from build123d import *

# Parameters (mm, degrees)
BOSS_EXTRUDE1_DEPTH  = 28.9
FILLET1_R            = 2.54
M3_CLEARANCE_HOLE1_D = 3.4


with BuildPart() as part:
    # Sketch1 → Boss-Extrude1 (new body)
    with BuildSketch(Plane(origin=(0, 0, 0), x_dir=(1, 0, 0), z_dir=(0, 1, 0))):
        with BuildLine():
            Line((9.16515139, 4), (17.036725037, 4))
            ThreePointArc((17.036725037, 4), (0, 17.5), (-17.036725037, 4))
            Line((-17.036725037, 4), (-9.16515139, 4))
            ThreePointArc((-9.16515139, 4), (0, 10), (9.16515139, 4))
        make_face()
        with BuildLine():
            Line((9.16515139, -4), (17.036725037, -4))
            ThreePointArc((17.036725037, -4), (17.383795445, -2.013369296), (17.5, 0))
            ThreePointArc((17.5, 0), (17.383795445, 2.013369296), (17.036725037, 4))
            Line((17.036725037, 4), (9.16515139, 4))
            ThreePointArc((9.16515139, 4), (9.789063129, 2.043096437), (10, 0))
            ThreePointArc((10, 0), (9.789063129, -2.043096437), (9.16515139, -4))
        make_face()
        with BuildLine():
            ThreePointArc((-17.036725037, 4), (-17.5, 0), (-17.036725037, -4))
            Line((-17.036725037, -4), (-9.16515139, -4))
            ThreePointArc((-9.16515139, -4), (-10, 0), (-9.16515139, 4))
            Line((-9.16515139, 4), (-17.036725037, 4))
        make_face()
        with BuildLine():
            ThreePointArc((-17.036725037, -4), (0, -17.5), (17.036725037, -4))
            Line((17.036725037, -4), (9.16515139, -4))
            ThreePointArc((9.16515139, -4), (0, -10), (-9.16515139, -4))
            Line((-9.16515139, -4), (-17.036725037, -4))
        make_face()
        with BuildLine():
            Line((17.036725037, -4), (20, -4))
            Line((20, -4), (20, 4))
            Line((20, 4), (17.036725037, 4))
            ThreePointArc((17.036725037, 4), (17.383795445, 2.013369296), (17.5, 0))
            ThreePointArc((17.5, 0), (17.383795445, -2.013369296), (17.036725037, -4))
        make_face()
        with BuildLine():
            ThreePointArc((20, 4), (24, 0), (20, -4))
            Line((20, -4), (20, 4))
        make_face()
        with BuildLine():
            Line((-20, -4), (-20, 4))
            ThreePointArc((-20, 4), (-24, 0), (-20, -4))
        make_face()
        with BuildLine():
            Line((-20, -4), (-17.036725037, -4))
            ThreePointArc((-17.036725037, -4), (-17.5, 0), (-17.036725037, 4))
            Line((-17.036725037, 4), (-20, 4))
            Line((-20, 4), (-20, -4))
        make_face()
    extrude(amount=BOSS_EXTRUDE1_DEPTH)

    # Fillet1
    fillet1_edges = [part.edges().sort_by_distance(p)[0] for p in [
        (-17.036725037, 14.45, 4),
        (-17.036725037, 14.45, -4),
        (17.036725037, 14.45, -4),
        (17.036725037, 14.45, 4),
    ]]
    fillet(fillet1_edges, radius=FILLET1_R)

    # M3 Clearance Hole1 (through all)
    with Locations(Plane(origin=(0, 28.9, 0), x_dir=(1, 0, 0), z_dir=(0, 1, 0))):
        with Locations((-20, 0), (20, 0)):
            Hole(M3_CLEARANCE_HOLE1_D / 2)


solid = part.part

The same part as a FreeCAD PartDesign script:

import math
import FreeCAD as App
import Part
import Sketcher


def edges_at(feature, points):
    """Names of the edges that pass closest to the given points."""
    edges = feature.Shape.Edges
    near = lambda p: min(range(len(edges)), key=lambda i: edges[i].distToShape(Part.Vertex(*p))[0])
    return sorted({f"Edge{near(p) + 1}" for p in points})

doc = App.newDocument("Part")
params = doc.addObject("Spreadsheet::Sheet", "Params")
for row, (alias, value) in enumerate([
    ("sketch1_radius", "4 mm"),
    ("sketch1_radius2", "10 mm"),
    ("sketch1_radius3", "17.5 mm"),
    ("pad1_length", "28.9 mm"),
    ("fillet_radius", "2.54 mm"),
    ("sketch2_diameter", "3.4 mm"),
    ("hole_diameter", "3.4 mm"),
], start=1):
    params.set(f"A{row}", alias)
    params.set(f"B{row}", "=" + value)
    params.setAlias(f"B{row}", alias)

body = doc.addObject("PartDesign::Body", "Body")

sketch1 = doc.addObject("Sketcher::SketchObject", "Sketch")
body.addObject(sketch1)
sketch1.AttachmentSupport = (doc.XZ_Plane, [""])
sketch1.MapMode = "FlatFace"
sketch1.addGeometry([
    Part.ArcOfCircle(Part.Circle(App.Vector(0, 0, 0), App.Vector(0, 0, 1), 17.5), math.radians(-167), math.radians(-13)),
    Part.LineSegment(App.Vector(-17, -4, 0), App.Vector(-20, -4, 0)),
    Part.ArcOfCircle(Part.Circle(App.Vector(-20, 0, 0), App.Vector(0, 0, 1), 4), math.radians(90), math.radians(270)),
    Part.LineSegment(App.Vector(-20, 4, 0), App.Vector(-17, 4, 0)),
    Part.ArcOfCircle(Part.Circle(App.Vector(0, 0, 0), App.Vector(0, 0, 1), 17.5), math.radians(13), math.radians(167)),
    Part.LineSegment(App.Vector(17, 4, 0), App.Vector(20, 4, 0)),
    Part.ArcOfCircle(Part.Circle(App.Vector(20, 0, 0), App.Vector(0, 0, 1), 4), math.radians(-90), math.radians(90)),
    Part.LineSegment(App.Vector(20, -4, 0), App.Vector(17, -4, 0)),
    Part.ArcOfCircle(Part.Circle(App.Vector(0, 0, 0), App.Vector(0, 0, 1), 10), math.radians(24), math.radians(156)),
    Part.ArcOfCircle(Part.Circle(App.Vector(0, 0, 0), App.Vector(0, 0, 1), 10), math.radians(156), math.radians(204)),
    Part.ArcOfCircle(Part.Circle(App.Vector(0, 0, 0), App.Vector(0, 0, 1), 10), math.radians(-156), math.radians(-24)),
    Part.ArcOfCircle(Part.Circle(App.Vector(0, 0, 0), App.Vector(0, 0, 1), 10), math.radians(-24), math.radians(0)),
    Part.ArcOfCircle(Part.Circle(App.Vector(0, 0, 0), App.Vector(0, 0, 1), 10), math.radians(0), math.radians(24)),
], False)
sketch1.addConstraint([
    Sketcher.Constraint("Coincident", 0, 1, 1, 1),
    Sketcher.Constraint("Tangent", 1, 2, 2, 2),
    Sketcher.Constraint("Tangent", 2, 1, 3, 1),
    Sketcher.Constraint("Coincident", 3, 2, 4, 2),
    Sketcher.Constraint("Coincident", 4, 1, 5, 1),
    Sketcher.Constraint("Tangent", 5, 2, 6, 2),
    Sketcher.Constraint("Tangent", 6, 1, 7, 1),
    Sketcher.Constraint("Coincident", 7, 2, 0, 2),
    Sketcher.Constraint("Tangent", 8, 2, 9, 1),
    Sketcher.Constraint("Tangent", 9, 2, 10, 1),
    Sketcher.Constraint("Tangent", 10, 2, 11, 1),
    Sketcher.Constraint("Tangent", 11, 2, 12, 1),
    Sketcher.Constraint("Tangent", 12, 2, 8, 1),
    Sketcher.Constraint("Horizontal", 1),
    Sketcher.Constraint("Horizontal", 3),
    Sketcher.Constraint("Horizontal", 5),
    Sketcher.Constraint("Horizontal", 7),
    Sketcher.Constraint("Coincident", 0, 3, -1, 1),
    Sketcher.Constraint("Coincident", 4, 3, -1, 1),
    Sketcher.Constraint("Coincident", 8, 3, -1, 1),
    Sketcher.Constraint("Coincident", 10, 3, -1, 1),
    Sketcher.Constraint("Equal", 0, 4),
    Sketcher.Constraint("Equal", 2, 6),
    Sketcher.Constraint("Symmetric", 2, 3, 6, 3, -1, 1),
    Sketcher.Constraint("PointOnObject", 2, 3, -1),
    Sketcher.Constraint("PointOnObject", 11, 2, -1),
    Sketcher.Constraint("Horizontal", 5, 2, 8, 2),
    Sketcher.Constraint("Horizontal", 7, 2, 9, 2),
    Sketcher.Constraint("Horizontal", 9, 2, 10, 2),
    Sketcher.Constraint("Horizontal", 8, 2, 12, 2),
    Sketcher.Constraint("Radius", 2, 4.0),
    Sketcher.Constraint("Radius", 8, 10.0),
    Sketcher.Constraint("Radius", 0, 17.5),
    Sketcher.Constraint("DistanceX", 2, 3, -1, 1, 20.0),
])
sketch1.setExpression("Constraints[30]", "Params.sketch1_radius")
sketch1.setExpression("Constraints[31]", "Params.sketch1_radius2")
sketch1.setExpression("Constraints[32]", "Params.sketch1_radius3")
pad1 = doc.addObject("PartDesign::Pad", "Pad")
body.addObject(pad1)
pad1.Profile = sketch1
pad1.setExpression("Length", "Params.pad1_length")
pad1.Reversed = True
doc.recompute()

fillet = doc.addObject("PartDesign::Fillet", "Fillet")
body.addObject(fillet)
fillet.Base = (pad1, edges_at(pad1, [
    (-17.037, 14.45, 4),
    (-17.037, 14.45, -4),
    (17.037, 14.45, -4),
    (17.037, 14.45, 4),
]))
fillet.setExpression("Radius", "Params.fillet_radius")

sketch2 = doc.addObject("Sketcher::SketchObject", "Sketch001")
body.addObject(sketch2)
sketch2.AttachmentSupport = (doc.XZ_Plane, [""])
sketch2.MapMode = "FlatFace"
sketch2.AttachmentOffset = App.Placement(App.Vector(0, 0, -28.9), App.Rotation())
sketch2.addGeometry([
    Part.Circle(App.Vector(-20, 0, 0), App.Vector(0, 0, 1), 1.7),
    Part.Circle(App.Vector(20, 0, 0), App.Vector(0, 0, 1), 1.7),
], False)
sketch2.addConstraint([
    Sketcher.Constraint("Equal", 0, 1),
    Sketcher.Constraint("Symmetric", 0, 3, 1, 3, -1, 1),
    Sketcher.Constraint("PointOnObject", 0, 3, -1),
    Sketcher.Constraint("Diameter", 0, 3.4),
    Sketcher.Constraint("DistanceX", 0, 3, -1, 1, 20.0),
])
sketch2.setExpression("Constraints[3]", "Params.sketch2_diameter")
doc.recompute()
hole = doc.addObject("PartDesign::Hole", "Hole")
body.addObject(hole)
hole.Profile = sketch2
hole.ThreadType = "None"
hole.setExpression("Diameter", "Params.hole_diameter")
hole.DepthType = "ThroughAll"
hole.Reversed = True

doc.recompute()
